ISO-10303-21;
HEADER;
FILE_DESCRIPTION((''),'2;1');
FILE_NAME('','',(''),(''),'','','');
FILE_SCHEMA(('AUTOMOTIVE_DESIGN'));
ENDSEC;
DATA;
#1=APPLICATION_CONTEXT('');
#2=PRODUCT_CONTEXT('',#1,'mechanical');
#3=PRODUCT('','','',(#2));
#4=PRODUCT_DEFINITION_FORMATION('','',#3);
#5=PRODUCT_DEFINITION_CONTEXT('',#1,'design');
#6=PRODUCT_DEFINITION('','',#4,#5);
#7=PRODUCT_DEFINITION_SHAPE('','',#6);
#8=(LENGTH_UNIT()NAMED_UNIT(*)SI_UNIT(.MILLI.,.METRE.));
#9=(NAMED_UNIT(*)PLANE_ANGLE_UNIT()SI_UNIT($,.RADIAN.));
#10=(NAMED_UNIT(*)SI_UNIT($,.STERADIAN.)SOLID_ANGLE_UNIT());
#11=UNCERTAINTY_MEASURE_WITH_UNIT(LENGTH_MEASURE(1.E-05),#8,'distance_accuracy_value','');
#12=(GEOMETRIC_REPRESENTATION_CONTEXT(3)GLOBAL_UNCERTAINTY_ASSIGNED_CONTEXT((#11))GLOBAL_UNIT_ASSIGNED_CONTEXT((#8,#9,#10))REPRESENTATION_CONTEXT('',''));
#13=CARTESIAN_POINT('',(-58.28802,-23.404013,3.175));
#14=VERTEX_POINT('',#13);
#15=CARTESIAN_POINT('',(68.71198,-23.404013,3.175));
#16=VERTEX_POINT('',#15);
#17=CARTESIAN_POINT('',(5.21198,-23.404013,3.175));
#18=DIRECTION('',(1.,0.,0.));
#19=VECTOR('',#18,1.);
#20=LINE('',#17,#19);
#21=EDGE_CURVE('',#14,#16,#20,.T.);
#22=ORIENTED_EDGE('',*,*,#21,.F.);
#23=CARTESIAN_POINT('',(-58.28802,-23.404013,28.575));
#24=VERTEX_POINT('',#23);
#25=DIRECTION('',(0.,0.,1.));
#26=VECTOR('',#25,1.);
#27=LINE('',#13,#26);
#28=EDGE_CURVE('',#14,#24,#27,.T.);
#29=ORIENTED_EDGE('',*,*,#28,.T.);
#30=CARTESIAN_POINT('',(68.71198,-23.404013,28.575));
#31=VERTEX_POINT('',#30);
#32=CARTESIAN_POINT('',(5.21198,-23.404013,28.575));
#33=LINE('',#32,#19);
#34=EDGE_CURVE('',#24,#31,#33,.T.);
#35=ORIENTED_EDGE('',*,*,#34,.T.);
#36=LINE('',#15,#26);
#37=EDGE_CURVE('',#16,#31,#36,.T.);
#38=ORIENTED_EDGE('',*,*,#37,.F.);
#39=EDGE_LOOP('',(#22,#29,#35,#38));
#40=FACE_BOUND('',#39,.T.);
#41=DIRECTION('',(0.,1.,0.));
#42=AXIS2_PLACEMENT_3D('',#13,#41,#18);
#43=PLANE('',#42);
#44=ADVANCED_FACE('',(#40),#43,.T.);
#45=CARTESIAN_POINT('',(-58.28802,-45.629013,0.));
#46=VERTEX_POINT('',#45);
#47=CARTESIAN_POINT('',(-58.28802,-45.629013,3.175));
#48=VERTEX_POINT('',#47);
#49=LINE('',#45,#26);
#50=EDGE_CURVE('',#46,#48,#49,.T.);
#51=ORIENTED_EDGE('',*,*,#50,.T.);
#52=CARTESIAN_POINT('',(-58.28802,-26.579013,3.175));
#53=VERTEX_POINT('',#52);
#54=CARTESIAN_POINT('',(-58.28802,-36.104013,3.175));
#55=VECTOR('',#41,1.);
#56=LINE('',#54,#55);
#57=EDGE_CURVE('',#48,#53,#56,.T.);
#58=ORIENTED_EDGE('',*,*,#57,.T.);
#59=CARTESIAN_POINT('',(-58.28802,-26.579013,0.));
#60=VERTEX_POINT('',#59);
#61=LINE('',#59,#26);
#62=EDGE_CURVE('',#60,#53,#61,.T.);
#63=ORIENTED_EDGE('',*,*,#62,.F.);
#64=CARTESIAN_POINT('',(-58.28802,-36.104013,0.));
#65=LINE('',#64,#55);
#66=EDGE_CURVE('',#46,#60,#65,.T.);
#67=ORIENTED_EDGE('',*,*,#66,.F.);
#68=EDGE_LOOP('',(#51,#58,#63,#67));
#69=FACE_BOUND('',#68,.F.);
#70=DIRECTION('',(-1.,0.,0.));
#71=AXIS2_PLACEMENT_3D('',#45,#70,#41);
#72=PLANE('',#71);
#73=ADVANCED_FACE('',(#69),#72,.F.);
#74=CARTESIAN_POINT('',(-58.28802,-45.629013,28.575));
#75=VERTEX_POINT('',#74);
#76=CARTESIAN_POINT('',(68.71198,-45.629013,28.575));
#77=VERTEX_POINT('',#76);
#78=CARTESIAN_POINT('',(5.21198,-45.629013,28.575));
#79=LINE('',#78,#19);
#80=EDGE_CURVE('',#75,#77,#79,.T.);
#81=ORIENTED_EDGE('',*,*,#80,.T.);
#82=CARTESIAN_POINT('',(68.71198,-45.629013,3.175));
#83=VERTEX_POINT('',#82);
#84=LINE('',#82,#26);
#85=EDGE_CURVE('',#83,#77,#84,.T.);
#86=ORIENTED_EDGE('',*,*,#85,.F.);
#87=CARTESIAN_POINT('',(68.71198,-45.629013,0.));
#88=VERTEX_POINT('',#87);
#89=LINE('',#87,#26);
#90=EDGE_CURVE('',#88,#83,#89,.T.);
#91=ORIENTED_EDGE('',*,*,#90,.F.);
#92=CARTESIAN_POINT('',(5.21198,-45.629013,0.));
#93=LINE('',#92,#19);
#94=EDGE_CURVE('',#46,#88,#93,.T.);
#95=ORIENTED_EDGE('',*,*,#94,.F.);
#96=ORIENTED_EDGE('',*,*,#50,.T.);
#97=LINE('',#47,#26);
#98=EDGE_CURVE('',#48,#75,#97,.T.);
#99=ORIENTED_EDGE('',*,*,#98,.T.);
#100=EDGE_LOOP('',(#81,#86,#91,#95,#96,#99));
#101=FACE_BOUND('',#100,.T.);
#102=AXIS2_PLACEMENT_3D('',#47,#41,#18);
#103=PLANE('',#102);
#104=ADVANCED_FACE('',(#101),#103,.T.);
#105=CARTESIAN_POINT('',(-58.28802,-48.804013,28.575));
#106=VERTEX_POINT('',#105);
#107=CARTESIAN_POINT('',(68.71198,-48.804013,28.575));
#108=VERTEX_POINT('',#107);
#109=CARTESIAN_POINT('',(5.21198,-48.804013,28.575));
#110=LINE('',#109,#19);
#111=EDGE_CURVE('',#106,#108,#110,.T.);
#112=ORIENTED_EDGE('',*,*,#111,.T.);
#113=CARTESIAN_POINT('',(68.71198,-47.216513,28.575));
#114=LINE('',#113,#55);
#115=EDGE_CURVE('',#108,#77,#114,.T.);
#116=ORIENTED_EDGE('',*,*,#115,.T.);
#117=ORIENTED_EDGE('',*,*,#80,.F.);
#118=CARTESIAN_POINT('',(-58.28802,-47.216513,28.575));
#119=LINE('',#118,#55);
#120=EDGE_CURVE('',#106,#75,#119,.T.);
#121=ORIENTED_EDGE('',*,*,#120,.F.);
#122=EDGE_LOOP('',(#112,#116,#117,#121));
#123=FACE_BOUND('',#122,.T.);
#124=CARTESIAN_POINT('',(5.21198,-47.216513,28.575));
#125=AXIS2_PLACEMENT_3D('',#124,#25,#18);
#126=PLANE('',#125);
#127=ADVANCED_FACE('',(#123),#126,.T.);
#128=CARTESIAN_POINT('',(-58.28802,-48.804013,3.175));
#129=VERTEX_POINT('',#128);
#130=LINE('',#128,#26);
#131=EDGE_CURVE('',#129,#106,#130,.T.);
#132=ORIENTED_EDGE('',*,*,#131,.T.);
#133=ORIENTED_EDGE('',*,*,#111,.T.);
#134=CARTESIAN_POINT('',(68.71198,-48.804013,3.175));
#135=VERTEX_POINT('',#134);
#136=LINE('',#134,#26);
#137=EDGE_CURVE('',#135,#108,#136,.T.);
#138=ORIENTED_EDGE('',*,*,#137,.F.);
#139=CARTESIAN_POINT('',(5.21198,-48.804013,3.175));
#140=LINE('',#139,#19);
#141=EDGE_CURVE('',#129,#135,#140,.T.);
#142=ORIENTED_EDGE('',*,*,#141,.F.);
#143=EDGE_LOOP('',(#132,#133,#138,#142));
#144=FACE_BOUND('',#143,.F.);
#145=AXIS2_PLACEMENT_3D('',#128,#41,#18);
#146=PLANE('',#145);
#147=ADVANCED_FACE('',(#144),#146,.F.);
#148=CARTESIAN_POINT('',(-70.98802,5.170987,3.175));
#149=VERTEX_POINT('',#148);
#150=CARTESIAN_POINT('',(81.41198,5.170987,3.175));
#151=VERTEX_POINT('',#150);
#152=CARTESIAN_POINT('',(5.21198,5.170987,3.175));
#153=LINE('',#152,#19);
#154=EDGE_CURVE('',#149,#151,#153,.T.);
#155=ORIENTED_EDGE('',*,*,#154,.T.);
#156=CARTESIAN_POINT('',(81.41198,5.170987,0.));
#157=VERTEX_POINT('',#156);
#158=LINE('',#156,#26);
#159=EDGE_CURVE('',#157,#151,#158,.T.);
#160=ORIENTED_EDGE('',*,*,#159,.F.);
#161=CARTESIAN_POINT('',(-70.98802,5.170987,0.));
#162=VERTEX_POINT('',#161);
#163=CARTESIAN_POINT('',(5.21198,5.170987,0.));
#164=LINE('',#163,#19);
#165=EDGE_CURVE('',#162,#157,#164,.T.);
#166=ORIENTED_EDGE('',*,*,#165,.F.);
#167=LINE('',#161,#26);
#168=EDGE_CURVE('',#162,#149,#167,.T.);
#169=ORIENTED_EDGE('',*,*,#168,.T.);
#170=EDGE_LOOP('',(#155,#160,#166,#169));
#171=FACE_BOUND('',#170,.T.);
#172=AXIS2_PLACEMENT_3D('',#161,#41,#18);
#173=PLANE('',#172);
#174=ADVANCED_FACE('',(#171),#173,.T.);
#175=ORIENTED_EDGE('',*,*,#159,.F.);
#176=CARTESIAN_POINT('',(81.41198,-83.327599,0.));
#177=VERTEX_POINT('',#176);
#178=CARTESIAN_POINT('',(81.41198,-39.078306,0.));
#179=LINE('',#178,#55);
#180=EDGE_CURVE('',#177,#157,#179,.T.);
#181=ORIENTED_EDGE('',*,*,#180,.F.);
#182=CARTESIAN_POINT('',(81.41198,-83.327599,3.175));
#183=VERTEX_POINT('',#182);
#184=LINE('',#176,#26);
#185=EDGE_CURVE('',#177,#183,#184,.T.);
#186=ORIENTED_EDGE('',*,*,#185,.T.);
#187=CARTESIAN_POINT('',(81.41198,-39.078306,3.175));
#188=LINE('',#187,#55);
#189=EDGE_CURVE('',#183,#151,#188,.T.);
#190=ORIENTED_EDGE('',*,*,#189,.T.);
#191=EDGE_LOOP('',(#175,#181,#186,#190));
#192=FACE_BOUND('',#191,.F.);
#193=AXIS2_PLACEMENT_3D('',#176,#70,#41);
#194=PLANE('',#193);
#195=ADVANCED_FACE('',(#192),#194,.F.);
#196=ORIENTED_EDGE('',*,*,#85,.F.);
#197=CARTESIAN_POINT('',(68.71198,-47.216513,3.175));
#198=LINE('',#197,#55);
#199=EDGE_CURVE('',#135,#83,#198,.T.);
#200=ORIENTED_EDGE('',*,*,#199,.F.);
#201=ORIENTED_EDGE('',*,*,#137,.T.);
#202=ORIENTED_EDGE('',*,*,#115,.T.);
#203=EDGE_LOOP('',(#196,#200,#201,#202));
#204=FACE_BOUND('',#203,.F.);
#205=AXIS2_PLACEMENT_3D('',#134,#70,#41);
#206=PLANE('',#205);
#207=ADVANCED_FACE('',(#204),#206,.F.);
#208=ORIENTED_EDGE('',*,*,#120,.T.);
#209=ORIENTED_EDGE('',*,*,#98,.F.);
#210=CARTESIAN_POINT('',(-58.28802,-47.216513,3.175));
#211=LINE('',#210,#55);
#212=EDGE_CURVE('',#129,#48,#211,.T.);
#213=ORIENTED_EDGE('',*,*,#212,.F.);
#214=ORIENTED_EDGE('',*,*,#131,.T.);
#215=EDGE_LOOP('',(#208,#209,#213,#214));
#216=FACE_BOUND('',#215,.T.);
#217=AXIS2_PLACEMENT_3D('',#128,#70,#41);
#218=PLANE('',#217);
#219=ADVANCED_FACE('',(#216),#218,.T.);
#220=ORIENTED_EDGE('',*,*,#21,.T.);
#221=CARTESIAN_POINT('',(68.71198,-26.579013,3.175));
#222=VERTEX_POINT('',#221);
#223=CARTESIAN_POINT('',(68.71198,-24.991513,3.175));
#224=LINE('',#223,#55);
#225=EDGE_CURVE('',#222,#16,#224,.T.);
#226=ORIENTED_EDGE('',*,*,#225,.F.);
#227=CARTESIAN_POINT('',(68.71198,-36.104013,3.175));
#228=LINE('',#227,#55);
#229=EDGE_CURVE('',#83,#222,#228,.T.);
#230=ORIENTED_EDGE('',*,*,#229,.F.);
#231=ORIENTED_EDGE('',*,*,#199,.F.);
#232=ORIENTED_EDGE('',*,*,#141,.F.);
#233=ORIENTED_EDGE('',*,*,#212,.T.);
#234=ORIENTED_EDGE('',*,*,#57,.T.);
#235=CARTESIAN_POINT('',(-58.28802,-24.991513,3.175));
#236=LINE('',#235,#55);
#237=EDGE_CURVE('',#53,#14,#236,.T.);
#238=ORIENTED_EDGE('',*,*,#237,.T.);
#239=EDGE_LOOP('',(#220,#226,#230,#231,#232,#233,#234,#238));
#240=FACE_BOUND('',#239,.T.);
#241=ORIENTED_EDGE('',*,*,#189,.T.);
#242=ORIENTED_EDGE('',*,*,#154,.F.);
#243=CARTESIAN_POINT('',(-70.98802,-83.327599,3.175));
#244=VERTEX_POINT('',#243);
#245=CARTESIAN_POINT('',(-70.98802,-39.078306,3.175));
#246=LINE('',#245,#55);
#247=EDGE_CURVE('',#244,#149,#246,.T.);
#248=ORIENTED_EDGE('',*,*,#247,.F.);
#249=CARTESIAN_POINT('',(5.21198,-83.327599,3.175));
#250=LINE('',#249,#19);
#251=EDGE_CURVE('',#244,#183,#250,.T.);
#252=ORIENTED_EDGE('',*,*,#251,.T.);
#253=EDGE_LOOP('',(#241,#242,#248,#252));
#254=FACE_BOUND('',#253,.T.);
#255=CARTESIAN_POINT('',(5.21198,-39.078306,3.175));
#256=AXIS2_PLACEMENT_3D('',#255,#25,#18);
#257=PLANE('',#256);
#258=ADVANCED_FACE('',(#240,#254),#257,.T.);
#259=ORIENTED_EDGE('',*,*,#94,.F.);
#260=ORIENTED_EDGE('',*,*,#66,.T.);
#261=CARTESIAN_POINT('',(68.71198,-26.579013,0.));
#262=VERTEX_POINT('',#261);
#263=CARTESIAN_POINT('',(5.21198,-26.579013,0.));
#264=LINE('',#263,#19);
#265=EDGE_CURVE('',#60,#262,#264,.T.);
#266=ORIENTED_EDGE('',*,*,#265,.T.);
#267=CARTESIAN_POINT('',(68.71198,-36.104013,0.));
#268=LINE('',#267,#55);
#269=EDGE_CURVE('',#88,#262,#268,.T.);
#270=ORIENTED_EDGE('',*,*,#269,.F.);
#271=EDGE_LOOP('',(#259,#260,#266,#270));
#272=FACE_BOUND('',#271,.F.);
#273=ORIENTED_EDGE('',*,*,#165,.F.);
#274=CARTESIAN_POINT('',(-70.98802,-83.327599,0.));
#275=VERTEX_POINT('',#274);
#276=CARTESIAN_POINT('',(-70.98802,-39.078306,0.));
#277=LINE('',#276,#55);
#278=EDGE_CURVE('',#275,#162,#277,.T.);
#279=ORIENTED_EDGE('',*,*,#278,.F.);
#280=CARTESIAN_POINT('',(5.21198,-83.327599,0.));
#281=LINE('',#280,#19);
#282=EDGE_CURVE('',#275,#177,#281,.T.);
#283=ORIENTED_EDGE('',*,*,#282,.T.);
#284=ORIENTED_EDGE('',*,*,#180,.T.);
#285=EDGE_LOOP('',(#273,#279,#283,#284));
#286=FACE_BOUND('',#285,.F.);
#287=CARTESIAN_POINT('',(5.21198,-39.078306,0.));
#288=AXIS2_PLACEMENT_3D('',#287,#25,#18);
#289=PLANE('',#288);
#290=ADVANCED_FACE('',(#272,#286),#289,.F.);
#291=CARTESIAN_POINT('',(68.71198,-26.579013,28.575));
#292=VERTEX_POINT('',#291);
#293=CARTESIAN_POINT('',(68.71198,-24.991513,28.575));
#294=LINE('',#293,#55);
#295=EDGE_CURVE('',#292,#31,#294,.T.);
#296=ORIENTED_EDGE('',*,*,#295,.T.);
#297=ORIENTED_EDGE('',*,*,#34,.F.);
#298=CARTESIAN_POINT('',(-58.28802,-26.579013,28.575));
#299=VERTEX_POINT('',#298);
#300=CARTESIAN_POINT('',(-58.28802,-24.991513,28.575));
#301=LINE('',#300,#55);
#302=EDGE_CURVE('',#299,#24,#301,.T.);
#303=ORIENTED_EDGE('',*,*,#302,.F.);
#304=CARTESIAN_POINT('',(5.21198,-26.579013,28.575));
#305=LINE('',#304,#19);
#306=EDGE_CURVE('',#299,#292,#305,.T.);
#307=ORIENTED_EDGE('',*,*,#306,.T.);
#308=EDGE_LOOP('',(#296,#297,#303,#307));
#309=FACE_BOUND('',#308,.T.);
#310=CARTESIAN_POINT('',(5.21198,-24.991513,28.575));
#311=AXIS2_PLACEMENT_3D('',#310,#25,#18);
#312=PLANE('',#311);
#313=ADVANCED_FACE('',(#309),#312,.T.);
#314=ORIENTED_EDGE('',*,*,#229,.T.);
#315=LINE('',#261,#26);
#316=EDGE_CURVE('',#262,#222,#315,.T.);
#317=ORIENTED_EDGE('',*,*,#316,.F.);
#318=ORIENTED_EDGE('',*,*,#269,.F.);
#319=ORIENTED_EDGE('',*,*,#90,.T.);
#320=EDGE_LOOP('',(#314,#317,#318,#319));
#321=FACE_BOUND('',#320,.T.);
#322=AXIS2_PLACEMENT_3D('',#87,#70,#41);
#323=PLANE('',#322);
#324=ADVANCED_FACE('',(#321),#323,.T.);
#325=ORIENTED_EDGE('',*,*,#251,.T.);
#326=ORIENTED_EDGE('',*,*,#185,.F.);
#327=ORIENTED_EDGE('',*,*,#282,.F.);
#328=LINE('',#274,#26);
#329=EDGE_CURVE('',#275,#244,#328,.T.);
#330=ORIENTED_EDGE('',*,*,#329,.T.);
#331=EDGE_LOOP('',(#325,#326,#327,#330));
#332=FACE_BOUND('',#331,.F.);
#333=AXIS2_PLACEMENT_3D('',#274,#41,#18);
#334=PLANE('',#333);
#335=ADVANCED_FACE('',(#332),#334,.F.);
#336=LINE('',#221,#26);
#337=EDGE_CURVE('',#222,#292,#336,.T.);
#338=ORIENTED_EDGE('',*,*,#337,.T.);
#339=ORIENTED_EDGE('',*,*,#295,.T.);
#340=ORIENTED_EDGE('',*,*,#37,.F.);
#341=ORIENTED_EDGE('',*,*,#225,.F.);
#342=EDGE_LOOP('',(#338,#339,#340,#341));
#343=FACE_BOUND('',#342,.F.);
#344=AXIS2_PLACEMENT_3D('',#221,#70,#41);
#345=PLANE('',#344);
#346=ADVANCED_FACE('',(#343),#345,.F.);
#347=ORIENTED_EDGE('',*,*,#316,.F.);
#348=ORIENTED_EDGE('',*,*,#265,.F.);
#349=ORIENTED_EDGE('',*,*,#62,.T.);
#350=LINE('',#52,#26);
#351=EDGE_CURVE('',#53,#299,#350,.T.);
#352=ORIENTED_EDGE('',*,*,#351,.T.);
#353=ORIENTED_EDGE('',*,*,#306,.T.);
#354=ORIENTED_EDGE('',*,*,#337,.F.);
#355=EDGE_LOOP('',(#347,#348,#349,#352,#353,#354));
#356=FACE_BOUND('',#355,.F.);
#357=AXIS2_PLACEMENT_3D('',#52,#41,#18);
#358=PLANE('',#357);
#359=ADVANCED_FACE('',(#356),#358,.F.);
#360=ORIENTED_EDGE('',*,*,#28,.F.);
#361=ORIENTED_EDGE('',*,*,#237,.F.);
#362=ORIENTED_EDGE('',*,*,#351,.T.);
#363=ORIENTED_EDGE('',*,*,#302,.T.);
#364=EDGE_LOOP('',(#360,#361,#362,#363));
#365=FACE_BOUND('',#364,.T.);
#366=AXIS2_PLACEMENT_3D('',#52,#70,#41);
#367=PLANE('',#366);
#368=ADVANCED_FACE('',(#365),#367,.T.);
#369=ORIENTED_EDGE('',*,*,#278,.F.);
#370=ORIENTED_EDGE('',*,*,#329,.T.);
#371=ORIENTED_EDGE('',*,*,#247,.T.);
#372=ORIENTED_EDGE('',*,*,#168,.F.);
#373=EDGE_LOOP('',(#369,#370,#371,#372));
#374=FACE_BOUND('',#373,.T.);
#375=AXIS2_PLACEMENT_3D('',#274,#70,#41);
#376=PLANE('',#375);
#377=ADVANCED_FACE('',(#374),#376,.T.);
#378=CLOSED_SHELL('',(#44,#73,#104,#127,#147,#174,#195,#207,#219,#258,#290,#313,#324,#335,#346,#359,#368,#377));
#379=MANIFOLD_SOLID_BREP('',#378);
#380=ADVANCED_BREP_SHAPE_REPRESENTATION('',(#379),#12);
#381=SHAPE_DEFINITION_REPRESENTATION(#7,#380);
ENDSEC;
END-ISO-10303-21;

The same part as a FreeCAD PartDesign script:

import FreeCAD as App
import Part
import Sketcher

V = App.Vector
Q = App.Units.Quantity

doc = App.newDocument("Part")
body = doc.addObject("PartDesign::Body", "Body")

# Sketch on XY plane
sketch1 = doc.addObject("Sketcher::SketchObject", "Sketch")
body.addObject(sketch1)
sketch1.AttachmentSupport = (doc.XY_Plane, [""])
sketch1.MapMode = "FlatFace"
sketch1.addGeometry(Part.LineSegment(V(-71, 5, 0), V(-71, -83, 0)), False)
sketch1.addGeometry(Part.LineSegment(V(-71, -83, 0), V(81, -83, 0)), False)
sketch1.addGeometry(Part.LineSegment(V(81, -83, 0), V(81, 5, 0)), False)
sketch1.addGeometry(Part.LineSegment(V(81, 5, 0), V(-71, 5, 0)), False)
sketch1.addGeometry(Part.LineSegment(V(69, -46, 0), V(-58, -46, 0)), False)
sketch1.addGeometry(Part.LineSegment(V(-58, -46, 0), V(-58, -27, 0)), False)
sketch1.addGeometry(Part.LineSegment(V(-58, -27, 0), V(69, -27, 0)), False)
sketch1.addGeometry(Part.LineSegment(V(69, -27, 0), V(69, -46, 0)), False)
sketch1.addConstraint(Sketcher.Constraint("Coincident", 0, 2, 1, 1))
sketch1.addConstraint(Sketcher.Constraint("Coincident", 1, 2, 2, 1))
sketch1.addConstraint(Sketcher.Constraint("Coincident", 2, 2, 3, 1))
sketch1.addConstraint(Sketcher.Constraint("Coincident", 3, 2, 0, 1))
sketch1.addConstraint(Sketcher.Constraint("Coincident", 4, 2, 5, 1))
sketch1.addConstraint(Sketcher.Constraint("Coincident", 5, 2, 6, 1))
sketch1.addConstraint(Sketcher.Constraint("Coincident", 6, 2, 7, 1))
sketch1.addConstraint(Sketcher.Constraint("Coincident", 7, 2, 4, 1))
sketch1.addConstraint(Sketcher.Constraint("Vertical", 0))
sketch1.addConstraint(Sketcher.Constraint("Horizontal", 1))
sketch1.addConstraint(Sketcher.Constraint("Vertical", 2))
sketch1.addConstraint(Sketcher.Constraint("Horizontal", 3))
sketch1.addConstraint(Sketcher.Constraint("Horizontal", 4))
sketch1.addConstraint(Sketcher.Constraint("Vertical", 5))
sketch1.addConstraint(Sketcher.Constraint("Horizontal", 6))
sketch1.addConstraint(Sketcher.Constraint("Vertical", 7))
sketch1.addConstraint(Sketcher.Constraint("DistanceX", 1, 1, 1, 2, Q("6 in")))
sketch1.addConstraint(Sketcher.Constraint("DistanceX", 4, 2, 4, 1, Q("5 in")))
sketch1.addConstraint(Sketcher.Constraint("DistanceY", 4, 2, 3, 2, Q("2 in")))
sketch1.addConstraint(Sketcher.Constraint("DistanceY", 5, 1, 5, 2, Q("0.75 in")))
sketch1.addConstraint(Sketcher.Constraint("DistanceX", 0, 2, 4, 2, Q("0.5 in")))
sketch1.addConstraint(Sketcher.Constraint("DistanceY", 0, 2, -1, 1, 83.327599))
sketch1.addConstraint(Sketcher.Constraint("DistanceY", 0, 2, 0, 1, 88.498586))
sketch1.addConstraint(Sketcher.Constraint("DistanceX", 0, 2, -1, 1, 70.98802))
pad1 = doc.addObject("PartDesign::Pad", "Pad")
body.addObject(pad1)
pad1.Profile = sketch1
pad1.Length = Q("0.125 in")

# Sketch on XY plane
sketch2 = doc.addObject("Sketcher::SketchObject", "Sketch001")
body.addObject(sketch2)
sketch2.AttachmentSupport = (doc.XY_Plane, [""])
sketch2.MapMode = "FlatFace"
sketch2.AttachmentOffset = App.Placement(V(0, 0, 0.125 * 25.4), App.Rotation())
sketch2.addGeometry(Part.LineSegment(V(-58.3, -23.4, 0), V(-58.3, -26.6, 0)), False)
sketch2.addGeometry(Part.LineSegment(V(-58.3, -26.6, 0), V(68.7, -26.6, 0)), False)
sketch2.addGeometry(Part.LineSegment(V(68.7, -26.6, 0), V(68.7, -23.4, 0)), False)
sketch2.addGeometry(Part.LineSegment(V(68.7, -23.4, 0), V(-58.3, -23.4, 0)), False)
sketch2.addGeometry(Part.LineSegment(V(-58.3, -45.6, 0), V(-58.3, -48.8, 0)), False)
sketch2.addGeometry(Part.LineSegment(V(-58.3, -48.8, 0), V(68.7, -48.8, 0)), False)
sketch2.addGeometry(Part.LineSegment(V(68.7, -48.8, 0), V(68.7, -45.6, 0)), False)
sketch2.addGeometry(Part.LineSegment(V(68.7, -45.6, 0), V(-58.3, -45.6, 0)), False)
sketch2.addConstraint(Sketcher.Constraint("Coincident", 0, 2, 1, 1))
sketch2.addConstraint(Sketcher.Constraint("Coincident", 1, 2, 2, 1))
sketch2.addConstraint(Sketcher.Constraint("Coincident", 2, 2, 3, 1))
sketch2.addConstraint(Sketcher.Constraint("Coincident", 3, 2, 0, 1))
sketch2.addConstraint(Sketcher.Constraint("Coincident", 4, 2, 5, 1))
sketch2.addConstraint(Sketcher.Constraint("Coincident", 5, 2, 6, 1))
sketch2.addConstraint(Sketcher.Constraint("Coincident", 6, 2, 7, 1))
sketch2.addConstraint(Sketcher.Constraint("Coincident", 7, 2, 4, 1))
sketch2.addConstraint(Sketcher.Constraint("Vertical", 0))
sketch2.addConstraint(Sketcher.Constraint("Horizontal", 1))
sketch2.addConstraint(Sketcher.Constraint("Vertical", 2))
sketch2.addConstraint(Sketcher.Constraint("Horizontal", 3))
sketch2.addConstraint(Sketcher.Constraint("Vertical", 4))
sketch2.addConstraint(Sketcher.Constraint("Horizontal", 5))
sketch2.addConstraint(Sketcher.Constraint("Vertical", 6))
sketch2.addConstraint(Sketcher.Constraint("Horizontal", 7))
sketch2.addConstraint(Sketcher.Constraint("Vertical", 3, 2, 4, 2))
sketch2.addConstraint(Sketcher.Constraint("Vertical", 2, 2, 5, 2))
sketch2.addConstraint(Sketcher.Constraint("Equal", 2, 4))
sketch2.addConstraint(Sketcher.Constraint("DistanceX", 1, 1, 1, 2, Q("5 in")))
sketch2.addConstraint(Sketcher.Constraint("DistanceY", 4, 2, 3, 2, Q("1 in")))
sketch2.addConstraint(Sketcher.Constraint("DistanceY", 0, 2, 0, 1, Q("0.125 in")))
sketch2.addConstraint(Sketcher.Constraint("DistanceX", 0, 2, -1, 1, 58.28802))
sketch2.addConstraint(Sketcher.Constraint("DistanceY", 0, 2, -1, 1, 26.579013))
pad2 = doc.addObject("PartDesign::Pad", "Pad001")
body.addObject(pad2)
pad2.Profile = sketch2
pad2.Length = Q("1 in")

doc.recompute()
